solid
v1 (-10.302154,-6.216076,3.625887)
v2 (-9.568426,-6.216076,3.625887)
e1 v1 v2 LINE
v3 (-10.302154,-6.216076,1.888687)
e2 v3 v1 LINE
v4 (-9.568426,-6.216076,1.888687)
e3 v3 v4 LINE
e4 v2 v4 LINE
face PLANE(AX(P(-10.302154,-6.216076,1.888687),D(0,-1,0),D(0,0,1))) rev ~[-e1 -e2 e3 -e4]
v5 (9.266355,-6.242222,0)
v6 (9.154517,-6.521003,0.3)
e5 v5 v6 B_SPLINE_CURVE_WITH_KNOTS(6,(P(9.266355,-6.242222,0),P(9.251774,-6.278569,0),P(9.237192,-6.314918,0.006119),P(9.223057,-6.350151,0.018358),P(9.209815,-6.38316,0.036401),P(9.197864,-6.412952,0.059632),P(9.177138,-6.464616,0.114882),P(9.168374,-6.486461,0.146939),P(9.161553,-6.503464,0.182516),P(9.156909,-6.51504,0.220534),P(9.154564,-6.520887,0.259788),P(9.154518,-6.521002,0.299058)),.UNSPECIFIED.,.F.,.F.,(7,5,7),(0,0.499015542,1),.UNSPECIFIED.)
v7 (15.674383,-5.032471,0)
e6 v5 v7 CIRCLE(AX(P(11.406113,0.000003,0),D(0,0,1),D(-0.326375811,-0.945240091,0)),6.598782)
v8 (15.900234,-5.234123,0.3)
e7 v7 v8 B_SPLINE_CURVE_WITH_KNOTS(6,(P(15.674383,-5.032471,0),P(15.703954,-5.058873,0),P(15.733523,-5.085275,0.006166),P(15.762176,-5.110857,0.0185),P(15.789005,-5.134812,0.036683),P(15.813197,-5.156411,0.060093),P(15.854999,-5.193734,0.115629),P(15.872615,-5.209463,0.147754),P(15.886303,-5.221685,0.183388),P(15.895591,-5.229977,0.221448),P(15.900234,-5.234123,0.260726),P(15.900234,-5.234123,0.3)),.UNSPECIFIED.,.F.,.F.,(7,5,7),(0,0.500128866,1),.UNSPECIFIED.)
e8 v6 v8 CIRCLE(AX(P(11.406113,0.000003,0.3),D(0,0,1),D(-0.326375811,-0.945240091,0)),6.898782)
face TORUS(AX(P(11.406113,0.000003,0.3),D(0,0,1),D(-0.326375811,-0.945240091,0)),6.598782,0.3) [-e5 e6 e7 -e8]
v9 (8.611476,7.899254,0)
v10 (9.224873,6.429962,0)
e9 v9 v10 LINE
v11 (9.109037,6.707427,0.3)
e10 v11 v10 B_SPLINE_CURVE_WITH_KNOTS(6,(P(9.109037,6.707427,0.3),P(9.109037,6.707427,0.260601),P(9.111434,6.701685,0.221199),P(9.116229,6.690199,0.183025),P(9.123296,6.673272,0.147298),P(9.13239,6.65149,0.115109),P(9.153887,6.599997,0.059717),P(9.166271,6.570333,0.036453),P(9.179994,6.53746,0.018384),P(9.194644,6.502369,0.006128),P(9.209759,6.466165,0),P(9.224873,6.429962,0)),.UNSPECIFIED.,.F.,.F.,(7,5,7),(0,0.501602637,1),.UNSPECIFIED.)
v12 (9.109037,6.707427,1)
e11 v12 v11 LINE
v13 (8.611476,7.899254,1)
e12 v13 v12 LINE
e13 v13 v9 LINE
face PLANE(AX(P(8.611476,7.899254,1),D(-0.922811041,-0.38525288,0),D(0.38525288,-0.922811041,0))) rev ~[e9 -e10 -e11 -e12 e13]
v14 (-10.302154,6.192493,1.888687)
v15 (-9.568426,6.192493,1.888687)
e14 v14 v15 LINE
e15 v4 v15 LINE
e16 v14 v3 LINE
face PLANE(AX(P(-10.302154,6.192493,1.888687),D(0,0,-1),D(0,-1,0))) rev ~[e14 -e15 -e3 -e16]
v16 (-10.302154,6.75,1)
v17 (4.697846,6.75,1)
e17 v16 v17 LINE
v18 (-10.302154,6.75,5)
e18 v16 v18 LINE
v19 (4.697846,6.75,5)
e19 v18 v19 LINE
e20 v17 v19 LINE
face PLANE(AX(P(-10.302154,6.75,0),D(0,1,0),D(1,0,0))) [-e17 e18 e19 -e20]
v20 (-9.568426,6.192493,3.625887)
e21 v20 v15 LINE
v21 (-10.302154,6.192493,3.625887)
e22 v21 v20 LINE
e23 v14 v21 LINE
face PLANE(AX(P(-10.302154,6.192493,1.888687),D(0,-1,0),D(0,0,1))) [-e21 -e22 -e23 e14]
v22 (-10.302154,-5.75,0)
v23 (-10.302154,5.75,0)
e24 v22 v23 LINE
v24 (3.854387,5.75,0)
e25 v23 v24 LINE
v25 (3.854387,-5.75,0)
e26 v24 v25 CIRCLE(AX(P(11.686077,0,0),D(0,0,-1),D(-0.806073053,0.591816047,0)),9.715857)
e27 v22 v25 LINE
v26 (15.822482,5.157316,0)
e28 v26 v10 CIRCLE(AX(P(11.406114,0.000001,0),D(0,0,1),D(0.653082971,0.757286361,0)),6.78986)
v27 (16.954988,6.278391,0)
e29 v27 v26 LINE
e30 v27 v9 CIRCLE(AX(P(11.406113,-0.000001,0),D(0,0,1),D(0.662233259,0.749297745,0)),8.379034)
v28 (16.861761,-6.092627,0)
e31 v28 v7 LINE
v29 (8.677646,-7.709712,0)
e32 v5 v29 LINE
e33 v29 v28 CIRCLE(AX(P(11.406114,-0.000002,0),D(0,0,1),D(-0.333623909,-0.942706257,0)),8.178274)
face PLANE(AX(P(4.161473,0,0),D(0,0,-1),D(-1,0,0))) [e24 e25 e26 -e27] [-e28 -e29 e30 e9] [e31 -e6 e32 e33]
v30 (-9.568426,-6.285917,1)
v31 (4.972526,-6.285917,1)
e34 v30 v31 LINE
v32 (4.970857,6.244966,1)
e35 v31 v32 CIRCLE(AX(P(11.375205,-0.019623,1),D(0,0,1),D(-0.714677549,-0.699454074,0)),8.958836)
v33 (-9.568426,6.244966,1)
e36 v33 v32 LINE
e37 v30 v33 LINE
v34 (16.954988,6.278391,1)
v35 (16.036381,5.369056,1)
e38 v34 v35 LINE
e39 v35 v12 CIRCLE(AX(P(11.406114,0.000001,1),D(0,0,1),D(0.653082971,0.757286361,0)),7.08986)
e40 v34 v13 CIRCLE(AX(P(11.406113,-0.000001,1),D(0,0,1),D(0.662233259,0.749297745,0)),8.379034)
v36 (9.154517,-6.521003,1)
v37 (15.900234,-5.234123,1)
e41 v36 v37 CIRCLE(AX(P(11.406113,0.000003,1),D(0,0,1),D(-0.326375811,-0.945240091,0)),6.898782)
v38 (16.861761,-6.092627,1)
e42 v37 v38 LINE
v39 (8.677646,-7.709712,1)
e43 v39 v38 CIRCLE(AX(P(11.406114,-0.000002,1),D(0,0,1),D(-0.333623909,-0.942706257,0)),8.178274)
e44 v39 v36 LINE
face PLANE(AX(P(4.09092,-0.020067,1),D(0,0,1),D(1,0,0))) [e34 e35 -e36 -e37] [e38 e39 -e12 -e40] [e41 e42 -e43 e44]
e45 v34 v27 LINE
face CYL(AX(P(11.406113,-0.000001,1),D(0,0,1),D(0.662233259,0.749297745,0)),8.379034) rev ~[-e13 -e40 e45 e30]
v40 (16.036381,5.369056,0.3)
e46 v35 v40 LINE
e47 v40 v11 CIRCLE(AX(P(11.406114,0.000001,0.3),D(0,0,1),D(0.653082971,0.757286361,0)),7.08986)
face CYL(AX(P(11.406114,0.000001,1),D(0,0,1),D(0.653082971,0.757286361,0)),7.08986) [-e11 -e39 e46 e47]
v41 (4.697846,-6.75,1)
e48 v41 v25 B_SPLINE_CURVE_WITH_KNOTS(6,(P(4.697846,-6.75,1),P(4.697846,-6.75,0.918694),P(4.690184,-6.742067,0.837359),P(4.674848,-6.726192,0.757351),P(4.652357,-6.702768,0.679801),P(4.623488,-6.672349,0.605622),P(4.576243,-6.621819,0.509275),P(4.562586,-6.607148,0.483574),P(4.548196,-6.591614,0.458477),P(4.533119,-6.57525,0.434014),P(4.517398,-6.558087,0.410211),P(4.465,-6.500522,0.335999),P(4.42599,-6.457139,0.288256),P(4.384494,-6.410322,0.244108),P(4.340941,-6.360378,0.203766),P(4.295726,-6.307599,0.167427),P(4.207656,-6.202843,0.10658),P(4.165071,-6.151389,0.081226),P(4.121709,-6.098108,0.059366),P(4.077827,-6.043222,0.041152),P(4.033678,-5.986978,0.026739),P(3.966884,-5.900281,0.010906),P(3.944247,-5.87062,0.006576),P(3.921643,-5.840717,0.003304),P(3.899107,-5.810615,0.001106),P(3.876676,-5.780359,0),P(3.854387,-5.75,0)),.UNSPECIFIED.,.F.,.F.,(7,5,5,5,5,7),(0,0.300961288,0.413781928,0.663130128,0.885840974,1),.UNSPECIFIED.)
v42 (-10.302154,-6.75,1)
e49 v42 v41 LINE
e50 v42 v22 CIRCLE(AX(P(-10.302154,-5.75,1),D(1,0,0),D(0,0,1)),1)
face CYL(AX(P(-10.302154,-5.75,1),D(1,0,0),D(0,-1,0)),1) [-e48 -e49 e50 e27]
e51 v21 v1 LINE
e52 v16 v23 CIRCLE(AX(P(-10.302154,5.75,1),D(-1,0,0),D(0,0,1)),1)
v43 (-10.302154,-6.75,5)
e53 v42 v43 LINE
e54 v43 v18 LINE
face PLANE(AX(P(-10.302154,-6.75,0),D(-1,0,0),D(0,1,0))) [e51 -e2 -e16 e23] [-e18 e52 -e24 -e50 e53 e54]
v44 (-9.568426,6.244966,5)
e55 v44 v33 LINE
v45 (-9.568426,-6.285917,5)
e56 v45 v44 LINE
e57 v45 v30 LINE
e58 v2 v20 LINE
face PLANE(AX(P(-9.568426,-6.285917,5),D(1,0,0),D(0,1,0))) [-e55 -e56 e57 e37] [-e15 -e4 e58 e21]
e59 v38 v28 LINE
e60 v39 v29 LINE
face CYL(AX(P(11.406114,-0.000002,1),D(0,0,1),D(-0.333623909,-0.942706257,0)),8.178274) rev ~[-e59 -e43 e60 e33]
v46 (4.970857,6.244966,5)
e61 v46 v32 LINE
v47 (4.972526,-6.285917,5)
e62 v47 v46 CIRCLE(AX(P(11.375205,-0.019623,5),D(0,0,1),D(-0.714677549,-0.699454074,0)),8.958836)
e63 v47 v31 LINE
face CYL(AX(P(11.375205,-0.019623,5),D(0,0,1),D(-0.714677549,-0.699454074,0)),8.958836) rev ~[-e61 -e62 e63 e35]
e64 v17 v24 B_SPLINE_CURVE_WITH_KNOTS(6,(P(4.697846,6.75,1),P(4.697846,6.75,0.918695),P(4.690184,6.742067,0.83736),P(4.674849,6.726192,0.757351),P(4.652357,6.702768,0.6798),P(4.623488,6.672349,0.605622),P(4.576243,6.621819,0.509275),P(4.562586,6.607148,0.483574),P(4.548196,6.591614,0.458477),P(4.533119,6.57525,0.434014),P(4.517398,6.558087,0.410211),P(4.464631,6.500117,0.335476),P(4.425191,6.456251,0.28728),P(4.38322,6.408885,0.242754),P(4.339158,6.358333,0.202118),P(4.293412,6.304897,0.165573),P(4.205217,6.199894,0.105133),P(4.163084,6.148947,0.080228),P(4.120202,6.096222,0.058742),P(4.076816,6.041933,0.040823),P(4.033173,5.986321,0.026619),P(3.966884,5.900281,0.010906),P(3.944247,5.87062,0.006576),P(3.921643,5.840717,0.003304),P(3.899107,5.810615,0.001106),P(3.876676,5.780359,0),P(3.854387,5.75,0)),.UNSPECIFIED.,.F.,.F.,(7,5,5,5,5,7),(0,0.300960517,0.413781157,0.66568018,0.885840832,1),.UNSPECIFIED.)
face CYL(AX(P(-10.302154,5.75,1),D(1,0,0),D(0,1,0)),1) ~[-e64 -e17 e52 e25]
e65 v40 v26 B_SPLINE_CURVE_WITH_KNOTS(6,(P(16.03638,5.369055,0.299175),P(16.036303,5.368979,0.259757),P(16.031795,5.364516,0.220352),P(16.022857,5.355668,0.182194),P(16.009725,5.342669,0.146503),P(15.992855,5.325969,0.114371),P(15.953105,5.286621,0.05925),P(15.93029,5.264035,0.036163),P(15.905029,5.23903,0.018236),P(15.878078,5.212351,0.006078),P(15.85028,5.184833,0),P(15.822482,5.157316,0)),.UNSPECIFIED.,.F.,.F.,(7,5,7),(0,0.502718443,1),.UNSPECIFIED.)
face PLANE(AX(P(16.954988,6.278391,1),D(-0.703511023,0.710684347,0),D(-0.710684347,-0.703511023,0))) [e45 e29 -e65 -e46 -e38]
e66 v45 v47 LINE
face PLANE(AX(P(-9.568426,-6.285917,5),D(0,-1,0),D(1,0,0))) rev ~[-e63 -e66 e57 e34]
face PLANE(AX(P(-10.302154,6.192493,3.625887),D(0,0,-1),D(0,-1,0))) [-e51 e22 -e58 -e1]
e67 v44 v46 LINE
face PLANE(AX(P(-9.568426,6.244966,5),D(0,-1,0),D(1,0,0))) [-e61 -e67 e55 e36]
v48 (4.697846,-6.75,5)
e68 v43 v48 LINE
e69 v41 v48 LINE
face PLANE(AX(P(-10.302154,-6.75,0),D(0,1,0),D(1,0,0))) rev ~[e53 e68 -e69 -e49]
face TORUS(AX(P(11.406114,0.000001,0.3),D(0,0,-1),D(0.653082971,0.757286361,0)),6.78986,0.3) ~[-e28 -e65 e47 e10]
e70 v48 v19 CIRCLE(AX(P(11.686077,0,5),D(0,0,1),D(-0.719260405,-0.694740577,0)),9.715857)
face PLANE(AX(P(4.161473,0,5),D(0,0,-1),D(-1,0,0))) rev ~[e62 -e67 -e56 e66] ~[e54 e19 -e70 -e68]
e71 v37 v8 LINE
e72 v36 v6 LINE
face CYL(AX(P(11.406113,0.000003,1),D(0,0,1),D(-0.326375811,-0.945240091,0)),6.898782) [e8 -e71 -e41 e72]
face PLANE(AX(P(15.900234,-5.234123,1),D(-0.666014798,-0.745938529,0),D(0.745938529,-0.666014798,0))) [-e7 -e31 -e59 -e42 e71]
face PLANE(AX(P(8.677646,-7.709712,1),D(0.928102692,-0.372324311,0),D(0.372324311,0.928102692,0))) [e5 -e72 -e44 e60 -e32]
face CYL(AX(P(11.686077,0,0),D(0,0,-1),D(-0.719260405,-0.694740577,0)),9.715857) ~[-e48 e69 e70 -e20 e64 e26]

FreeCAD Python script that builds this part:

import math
import FreeCAD as App
import Part
import Sketcher

V = App.Vector
Q = App.Units.Quantity


def edges_at(feature, points):
    """Names of the edges that pass closest to the given points."""
    edges = feature.Shape.Edges
    near = lambda p: min(range(len(edges)), key=lambda i: edges[i].distToShape(Part.Vertex(*p))[0])
    return sorted({f"Edge{near(p) + 1}" for p in points})


def add_polygon(sketch, points):
    """Adds a closed chain of lines whose ends are joined by coincident constraints."""
    first, n = sketch.GeometryCount, len(points)
    for a, b in zip(points, points[1:] + points[:1]):
        sketch.addGeometry(Part.LineSegment(App.Vector(*a, 0), App.Vector(*b, 0)), False)
    for i in range(n):
        sketch.addConstraint(Sketcher.Constraint("Coincident", first + i, 2, first + (i + 1) % n, 1))

doc = App.newDocument("Part")
body = doc.addObject("PartDesign::Body", "Body")

# Sketch on XY plane
sketch1 = doc.addObject("Sketcher::SketchObject", "Sketch")
body.addObject(sketch1)
sketch1.AttachmentSupport = (doc.XY_Plane, [""])
sketch1.MapMode = "FlatFace"
sketch1.addGeometry(Part.LineSegment(V(-10, 7, 0), V(-10, -7, 0)), False)
sketch1.addGeometry(Part.LineSegment(V(-10, -7, 0), V(5, -7, 0)), False)
sketch1.addGeometry(Part.ArcOfCircle(Part.Circle(V(12, 0, 0), V(0, 0, 1), 10), math.radians(-136), math.radians(136)), False)
sketch1.addGeometry(Part.LineSegment(V(5, 7, 0), V(-10, 7, 0)), False)
sketch1.addConstraint(Sketcher.Constraint("Coincident", 0, 2, 1, 1))
sketch1.addConstraint(Sketcher.Constraint("Coincident", 1, 2, 2, 1))
sketch1.addConstraint(Sketcher.Constraint("Coincident", 2, 2, 3, 1))
sketch1.addConstraint(Sketcher.Constraint("Coincident", 3, 2, 0, 1))
sketch1.addConstraint(Sketcher.Constraint("Vertical", 0))
sketch1.addConstraint(Sketcher.Constraint("Horizontal", 1))
sketch1.addConstraint(Sketcher.Constraint("Horizontal", 3))
sketch1.addConstraint(Sketcher.Constraint("Symmetric", 1, 2, 2, 2, -1))
sketch1.addConstraint(Sketcher.Constraint("DistanceX", 1, 1, 1, 2, Q("15 mm")))
sketch1.addConstraint(Sketcher.Constraint("DistanceY", 0, 2, 0, 1, Q("13.5 mm")))
sketch1.addConstraint(Sketcher.Constraint("Radius", 2, Q("9.715857 mm")))
sketch1.addConstraint(Sketcher.Constraint("DistanceX", -1, 1, 2, 3, Q("11.686077 mm")))
pad1 = doc.addObject("PartDesign::Pad", "Pad")
body.addObject(pad1)
pad1.Profile = sketch1
pad1.Length = 5

# Sketch on XY plane
sketch2 = doc.addObject("Sketcher::SketchObject", "Sketch001")
body.addObject(sketch2)
sketch2.AttachmentSupport = (doc.XY_Plane, [""])
sketch2.MapMode = "FlatFace"
sketch2.AttachmentOffset = App.Placement(V(0, 0, 5), App.Rotation())
sketch2.addGeometry(Part.LineSegment(V(-10, -6, 0), V(5, -6, 0)), False)
sketch2.addGeometry(Part.ArcOfCircle(Part.Circle(V(11, 0, 0), V(0, 0, 1), 9), math.radians(-136), math.radians(136)), False)
sketch2.addGeometry(Part.LineSegment(V(5, 6, 0), V(-10, 6, 0)), False)
sketch2.addGeometry(Part.LineSegment(V(-10, 6, 0), V(-10, -6, 0)), False)
sketch2.addConstraint(Sketcher.Constraint("Coincident", 0, 2, 1, 1))
sketch2.addConstraint(Sketcher.Constraint("Coincident", 1, 2, 2, 1))
sketch2.addConstraint(Sketcher.Constraint("Coincident", 2, 2, 3, 1))
sketch2.addConstraint(Sketcher.Constraint("Coincident", 3, 2, 0, 1))
sketch2.addConstraint(Sketcher.Constraint("Horizontal", 0))
sketch2.addConstraint(Sketcher.Constraint("Horizontal", 2))
sketch2.addConstraint(Sketcher.Constraint("Vertical", 3))
sketch2.addConstraint(Sketcher.Constraint("Radius", 1, Q("8.958836 mm")))
sketch2.addConstraint(Sketcher.Constraint("DistanceX", 0, 1, 0, 2, Q("14.540952 mm")))
sketch2.addConstraint(Sketcher.Constraint("DistanceX", 2, 2, 2, 1, Q("14.539283 mm")))
sketch2.addConstraint(Sketcher.Constraint("DistanceY", 3, 2, 3, 1, Q("12.530883 mm")))
sketch2.addConstraint(Sketcher.Constraint("DistanceX", -1, 1, 1, 3, Q("11.375205 mm")))
sketch2.addConstraint(Sketcher.Constraint("DistanceY", 1, 3, -1, 1, Q("0.019623 mm")))
pocket1 = doc.addObject("PartDesign::Pocket", "Pocket")
body.addObject(pocket1)
pocket1.Profile = sketch2
pocket1.Length = 4

# Sketch on XY plane
sketch3 = doc.addObject("Sketcher::SketchObject", "Sketch002")
body.addObject(sketch3)
sketch3.AttachmentSupport = (doc.XY_Plane, [""])
sketch3.MapMode = "FlatFace"
sketch3.AttachmentOffset = App.Placement(V(0, 0, 1), App.Rotation())
sketch3.addGeometry(Part.ArcOfCircle(Part.Circle(V(11.4, 0, 0), V(0, 0, 1), 8.4), math.radians(49), math.radians(109)), False)
sketch3.addGeometry(Part.LineSegment(V(8.6, 7.9, 0), V(9.1, 6.7, 0)), False)
sketch3.addGeometry(Part.ArcOfCircle(Part.Circle(V(11.4, 0, 0), V(0, 0, 1), 7.1), math.radians(49), math.radians(109)), False)
sketch3.addGeometry(Part.LineSegment(V(16, 5.4, 0), V(17, 6.3, 0)), False)
sketch3.addGeometry(Part.ArcOfCircle(Part.Circle(V(11.4, 0, 0), V(0, 0, 1), 8.2), math.radians(-109), math.radians(-48)), False)
sketch3.addGeometry(Part.LineSegment(V(16.9, -6.1, 0), V(15.9, -5.2, 0)), False)
sketch3.addGeometry(Part.ArcOfCircle(Part.Circle(V(11.4, 0, 0), V(0, 0, 1), 6.9), math.radians(-109), math.radians(-49)), False)
sketch3.addGeometry(Part.LineSegment(V(9.2, -6.5, 0), V(8.7, -7.7, 0)), False)
sketch3.addConstraint(Sketcher.Constraint("Coincident", 0, 2, 1, 1))
sketch3.addConstraint(Sketcher.Constraint("Coincident", 1, 2, 2, 2))
sketch3.addConstraint(Sketcher.Constraint("Coincident", 2, 1, 3, 1))
sketch3.addConstraint(Sketcher.Constraint("Coincident", 3, 2, 0, 1))
sketch3.addConstraint(Sketcher.Constraint("Coincident", 4, 2, 5, 1))
sketch3.addConstraint(Sketcher.Constraint("Coincident", 5, 2, 6, 2))
sketch3.addConstraint(Sketcher.Constraint("Coincident", 6, 1, 7, 1))
sketch3.addConstraint(Sketcher.Constraint("Coincident", 7, 2, 4, 1))
sketch3.addConstraint(Sketcher.Constraint("Coincident", 2, 3, 0, 3))
sketch3.addConstraint(Sketcher.Constraint("Coincident", 4, 3, 0, 3))
sketch3.addConstraint(Sketcher.Constraint("Coincident", 6, 3, 0, 3))
sketch3.addConstraint(Sketcher.Constraint("PointOnObject", 0, 3, -1))
sketch3.addConstraint(Sketcher.Constraint("Radius", 2, Q("7.08986 mm")))
sketch3.addConstraint(Sketcher.Constraint("Radius", 0, Q("8.379034 mm")))
sketch3.addConstraint(Sketcher.Constraint("Radius", 4, Q("8.178274 mm")))
sketch3.addConstraint(Sketcher.Constraint("Radius", 6, Q("6.898782 mm")))
sketch3.addConstraint(Sketcher.Constraint("DistanceY", 6, 1, 4, 3, Q("6.521001 mm")))
sketch3.addConstraint(Sketcher.Constraint("DistanceX", -1, 1, 2, 1, Q("16.036381 mm")))
sketch3.addConstraint(Sketcher.Constraint("DistanceX", -1, 1, 3, 2, Q("16.954988 mm")))
sketch3.addConstraint(Sketcher.Constraint("DistanceY", -1, 1, 3, 2, Q("6.278391 mm")))
sketch3.addConstraint(Sketcher.Constraint("DistanceX", -1, 1, 4, 2, Q("16.861761 mm")))
sketch3.addConstraint(Sketcher.Constraint("DistanceY", 7, 2, -1, 1, Q("7.709712 mm")))
sketch3.addConstraint(Sketcher.Constraint("DistanceY", 6, 3, 0, 2, Q("7.899251 mm")))
sketch3.addConstraint(Sketcher.Constraint("DistanceX", 0, 2, 1, 2, Q("0.497561 mm")))
sketch3.addConstraint(Sketcher.Constraint("DistanceX", 4, 3, 5, 2, Q("4.49412 mm")))
pocket2 = doc.addObject("PartDesign::Pocket", "Pocket001")
body.addObject(pocket2)
pocket2.Profile = sketch3
pocket2.Length = 5
doc.recompute()

fillet = doc.addObject("PartDesign::Fillet", "Fillet")
body.addObject(fillet)
fillet.Base = (pocket2, edges_at(pocket2, [(-2.802, -6.75, 0)]))
fillet.Radius = 1
doc.recompute()

fillet2 = doc.addObject("PartDesign::Fillet", "Fillet001")
body.addObject(fillet2)
fillet2.Base = (fillet, edges_at(fillet, [(-2.802, 6.75, 0)]))
fillet2.Radius = 1
doc.recompute()

fillet3 = doc.addObject("PartDesign::Fillet", "Fillet002")
body.addObject(fillet3)
fillet3.Base = (fillet2, edges_at(fillet2, [(12.751, 6.961, 0)]))
fillet3.Radius = 0.3
doc.recompute()

fillet4 = doc.addObject("PartDesign::Fillet", "Fillet003")
body.addObject(fillet4)
fillet4.Base = (fillet3, edges_at(fillet3, [(12.699, -6.777, 0)]))
fillet4.Radius = 0.3

# Sketch on YZ plane
sketch4 = doc.addObject("Sketcher::SketchObject", "Sketch003")
body.addObject(sketch4)
sketch4.AttachmentSupport = (doc.YZ_Plane, [""])
sketch4.MapMode = "FlatFace"
sketch4.AttachmentOffset = App.Placement(V(0, 0, -10.302154), App.Rotation())
add_polygon(sketch4, [(6.2, 3.6), (6.2, 1.9), (-6.2, 1.9), (-6.2, 3.6)])  # lines 0-3
sketch4.addConstraint(Sketcher.Constraint("Vertical", 0))
sketch4.addConstraint(Sketcher.Constraint("Horizontal", 1))
sketch4.addConstraint(Sketcher.Constraint("Vertical", 2))
sketch4.addConstraint(Sketcher.Constraint("Horizontal", 3))
sketch4.addConstraint(Sketcher.Constraint("DistanceY", 0, 2, 0, 1, Q("1.7372 mm")))
sketch4.addConstraint(Sketcher.Constraint("DistanceX", 1, 2, 1, 1, Q("12.408569 mm")))
sketch4.addConstraint(Sketcher.Constraint("DistanceX", -1, 1, 0, 2, Q("6.192493 mm")))
sketch4.addConstraint(Sketcher.Constraint("DistanceY", -1, 1, 0, 2, Q("1.888687 mm")))
pocket3 = doc.addObject("PartDesign::Pocket", "Pocket002")
body.addObject(pocket3)
pocket3.Profile = sketch4
pocket3.Length = 2
pocket3.Reversed = True

doc.recompute()
